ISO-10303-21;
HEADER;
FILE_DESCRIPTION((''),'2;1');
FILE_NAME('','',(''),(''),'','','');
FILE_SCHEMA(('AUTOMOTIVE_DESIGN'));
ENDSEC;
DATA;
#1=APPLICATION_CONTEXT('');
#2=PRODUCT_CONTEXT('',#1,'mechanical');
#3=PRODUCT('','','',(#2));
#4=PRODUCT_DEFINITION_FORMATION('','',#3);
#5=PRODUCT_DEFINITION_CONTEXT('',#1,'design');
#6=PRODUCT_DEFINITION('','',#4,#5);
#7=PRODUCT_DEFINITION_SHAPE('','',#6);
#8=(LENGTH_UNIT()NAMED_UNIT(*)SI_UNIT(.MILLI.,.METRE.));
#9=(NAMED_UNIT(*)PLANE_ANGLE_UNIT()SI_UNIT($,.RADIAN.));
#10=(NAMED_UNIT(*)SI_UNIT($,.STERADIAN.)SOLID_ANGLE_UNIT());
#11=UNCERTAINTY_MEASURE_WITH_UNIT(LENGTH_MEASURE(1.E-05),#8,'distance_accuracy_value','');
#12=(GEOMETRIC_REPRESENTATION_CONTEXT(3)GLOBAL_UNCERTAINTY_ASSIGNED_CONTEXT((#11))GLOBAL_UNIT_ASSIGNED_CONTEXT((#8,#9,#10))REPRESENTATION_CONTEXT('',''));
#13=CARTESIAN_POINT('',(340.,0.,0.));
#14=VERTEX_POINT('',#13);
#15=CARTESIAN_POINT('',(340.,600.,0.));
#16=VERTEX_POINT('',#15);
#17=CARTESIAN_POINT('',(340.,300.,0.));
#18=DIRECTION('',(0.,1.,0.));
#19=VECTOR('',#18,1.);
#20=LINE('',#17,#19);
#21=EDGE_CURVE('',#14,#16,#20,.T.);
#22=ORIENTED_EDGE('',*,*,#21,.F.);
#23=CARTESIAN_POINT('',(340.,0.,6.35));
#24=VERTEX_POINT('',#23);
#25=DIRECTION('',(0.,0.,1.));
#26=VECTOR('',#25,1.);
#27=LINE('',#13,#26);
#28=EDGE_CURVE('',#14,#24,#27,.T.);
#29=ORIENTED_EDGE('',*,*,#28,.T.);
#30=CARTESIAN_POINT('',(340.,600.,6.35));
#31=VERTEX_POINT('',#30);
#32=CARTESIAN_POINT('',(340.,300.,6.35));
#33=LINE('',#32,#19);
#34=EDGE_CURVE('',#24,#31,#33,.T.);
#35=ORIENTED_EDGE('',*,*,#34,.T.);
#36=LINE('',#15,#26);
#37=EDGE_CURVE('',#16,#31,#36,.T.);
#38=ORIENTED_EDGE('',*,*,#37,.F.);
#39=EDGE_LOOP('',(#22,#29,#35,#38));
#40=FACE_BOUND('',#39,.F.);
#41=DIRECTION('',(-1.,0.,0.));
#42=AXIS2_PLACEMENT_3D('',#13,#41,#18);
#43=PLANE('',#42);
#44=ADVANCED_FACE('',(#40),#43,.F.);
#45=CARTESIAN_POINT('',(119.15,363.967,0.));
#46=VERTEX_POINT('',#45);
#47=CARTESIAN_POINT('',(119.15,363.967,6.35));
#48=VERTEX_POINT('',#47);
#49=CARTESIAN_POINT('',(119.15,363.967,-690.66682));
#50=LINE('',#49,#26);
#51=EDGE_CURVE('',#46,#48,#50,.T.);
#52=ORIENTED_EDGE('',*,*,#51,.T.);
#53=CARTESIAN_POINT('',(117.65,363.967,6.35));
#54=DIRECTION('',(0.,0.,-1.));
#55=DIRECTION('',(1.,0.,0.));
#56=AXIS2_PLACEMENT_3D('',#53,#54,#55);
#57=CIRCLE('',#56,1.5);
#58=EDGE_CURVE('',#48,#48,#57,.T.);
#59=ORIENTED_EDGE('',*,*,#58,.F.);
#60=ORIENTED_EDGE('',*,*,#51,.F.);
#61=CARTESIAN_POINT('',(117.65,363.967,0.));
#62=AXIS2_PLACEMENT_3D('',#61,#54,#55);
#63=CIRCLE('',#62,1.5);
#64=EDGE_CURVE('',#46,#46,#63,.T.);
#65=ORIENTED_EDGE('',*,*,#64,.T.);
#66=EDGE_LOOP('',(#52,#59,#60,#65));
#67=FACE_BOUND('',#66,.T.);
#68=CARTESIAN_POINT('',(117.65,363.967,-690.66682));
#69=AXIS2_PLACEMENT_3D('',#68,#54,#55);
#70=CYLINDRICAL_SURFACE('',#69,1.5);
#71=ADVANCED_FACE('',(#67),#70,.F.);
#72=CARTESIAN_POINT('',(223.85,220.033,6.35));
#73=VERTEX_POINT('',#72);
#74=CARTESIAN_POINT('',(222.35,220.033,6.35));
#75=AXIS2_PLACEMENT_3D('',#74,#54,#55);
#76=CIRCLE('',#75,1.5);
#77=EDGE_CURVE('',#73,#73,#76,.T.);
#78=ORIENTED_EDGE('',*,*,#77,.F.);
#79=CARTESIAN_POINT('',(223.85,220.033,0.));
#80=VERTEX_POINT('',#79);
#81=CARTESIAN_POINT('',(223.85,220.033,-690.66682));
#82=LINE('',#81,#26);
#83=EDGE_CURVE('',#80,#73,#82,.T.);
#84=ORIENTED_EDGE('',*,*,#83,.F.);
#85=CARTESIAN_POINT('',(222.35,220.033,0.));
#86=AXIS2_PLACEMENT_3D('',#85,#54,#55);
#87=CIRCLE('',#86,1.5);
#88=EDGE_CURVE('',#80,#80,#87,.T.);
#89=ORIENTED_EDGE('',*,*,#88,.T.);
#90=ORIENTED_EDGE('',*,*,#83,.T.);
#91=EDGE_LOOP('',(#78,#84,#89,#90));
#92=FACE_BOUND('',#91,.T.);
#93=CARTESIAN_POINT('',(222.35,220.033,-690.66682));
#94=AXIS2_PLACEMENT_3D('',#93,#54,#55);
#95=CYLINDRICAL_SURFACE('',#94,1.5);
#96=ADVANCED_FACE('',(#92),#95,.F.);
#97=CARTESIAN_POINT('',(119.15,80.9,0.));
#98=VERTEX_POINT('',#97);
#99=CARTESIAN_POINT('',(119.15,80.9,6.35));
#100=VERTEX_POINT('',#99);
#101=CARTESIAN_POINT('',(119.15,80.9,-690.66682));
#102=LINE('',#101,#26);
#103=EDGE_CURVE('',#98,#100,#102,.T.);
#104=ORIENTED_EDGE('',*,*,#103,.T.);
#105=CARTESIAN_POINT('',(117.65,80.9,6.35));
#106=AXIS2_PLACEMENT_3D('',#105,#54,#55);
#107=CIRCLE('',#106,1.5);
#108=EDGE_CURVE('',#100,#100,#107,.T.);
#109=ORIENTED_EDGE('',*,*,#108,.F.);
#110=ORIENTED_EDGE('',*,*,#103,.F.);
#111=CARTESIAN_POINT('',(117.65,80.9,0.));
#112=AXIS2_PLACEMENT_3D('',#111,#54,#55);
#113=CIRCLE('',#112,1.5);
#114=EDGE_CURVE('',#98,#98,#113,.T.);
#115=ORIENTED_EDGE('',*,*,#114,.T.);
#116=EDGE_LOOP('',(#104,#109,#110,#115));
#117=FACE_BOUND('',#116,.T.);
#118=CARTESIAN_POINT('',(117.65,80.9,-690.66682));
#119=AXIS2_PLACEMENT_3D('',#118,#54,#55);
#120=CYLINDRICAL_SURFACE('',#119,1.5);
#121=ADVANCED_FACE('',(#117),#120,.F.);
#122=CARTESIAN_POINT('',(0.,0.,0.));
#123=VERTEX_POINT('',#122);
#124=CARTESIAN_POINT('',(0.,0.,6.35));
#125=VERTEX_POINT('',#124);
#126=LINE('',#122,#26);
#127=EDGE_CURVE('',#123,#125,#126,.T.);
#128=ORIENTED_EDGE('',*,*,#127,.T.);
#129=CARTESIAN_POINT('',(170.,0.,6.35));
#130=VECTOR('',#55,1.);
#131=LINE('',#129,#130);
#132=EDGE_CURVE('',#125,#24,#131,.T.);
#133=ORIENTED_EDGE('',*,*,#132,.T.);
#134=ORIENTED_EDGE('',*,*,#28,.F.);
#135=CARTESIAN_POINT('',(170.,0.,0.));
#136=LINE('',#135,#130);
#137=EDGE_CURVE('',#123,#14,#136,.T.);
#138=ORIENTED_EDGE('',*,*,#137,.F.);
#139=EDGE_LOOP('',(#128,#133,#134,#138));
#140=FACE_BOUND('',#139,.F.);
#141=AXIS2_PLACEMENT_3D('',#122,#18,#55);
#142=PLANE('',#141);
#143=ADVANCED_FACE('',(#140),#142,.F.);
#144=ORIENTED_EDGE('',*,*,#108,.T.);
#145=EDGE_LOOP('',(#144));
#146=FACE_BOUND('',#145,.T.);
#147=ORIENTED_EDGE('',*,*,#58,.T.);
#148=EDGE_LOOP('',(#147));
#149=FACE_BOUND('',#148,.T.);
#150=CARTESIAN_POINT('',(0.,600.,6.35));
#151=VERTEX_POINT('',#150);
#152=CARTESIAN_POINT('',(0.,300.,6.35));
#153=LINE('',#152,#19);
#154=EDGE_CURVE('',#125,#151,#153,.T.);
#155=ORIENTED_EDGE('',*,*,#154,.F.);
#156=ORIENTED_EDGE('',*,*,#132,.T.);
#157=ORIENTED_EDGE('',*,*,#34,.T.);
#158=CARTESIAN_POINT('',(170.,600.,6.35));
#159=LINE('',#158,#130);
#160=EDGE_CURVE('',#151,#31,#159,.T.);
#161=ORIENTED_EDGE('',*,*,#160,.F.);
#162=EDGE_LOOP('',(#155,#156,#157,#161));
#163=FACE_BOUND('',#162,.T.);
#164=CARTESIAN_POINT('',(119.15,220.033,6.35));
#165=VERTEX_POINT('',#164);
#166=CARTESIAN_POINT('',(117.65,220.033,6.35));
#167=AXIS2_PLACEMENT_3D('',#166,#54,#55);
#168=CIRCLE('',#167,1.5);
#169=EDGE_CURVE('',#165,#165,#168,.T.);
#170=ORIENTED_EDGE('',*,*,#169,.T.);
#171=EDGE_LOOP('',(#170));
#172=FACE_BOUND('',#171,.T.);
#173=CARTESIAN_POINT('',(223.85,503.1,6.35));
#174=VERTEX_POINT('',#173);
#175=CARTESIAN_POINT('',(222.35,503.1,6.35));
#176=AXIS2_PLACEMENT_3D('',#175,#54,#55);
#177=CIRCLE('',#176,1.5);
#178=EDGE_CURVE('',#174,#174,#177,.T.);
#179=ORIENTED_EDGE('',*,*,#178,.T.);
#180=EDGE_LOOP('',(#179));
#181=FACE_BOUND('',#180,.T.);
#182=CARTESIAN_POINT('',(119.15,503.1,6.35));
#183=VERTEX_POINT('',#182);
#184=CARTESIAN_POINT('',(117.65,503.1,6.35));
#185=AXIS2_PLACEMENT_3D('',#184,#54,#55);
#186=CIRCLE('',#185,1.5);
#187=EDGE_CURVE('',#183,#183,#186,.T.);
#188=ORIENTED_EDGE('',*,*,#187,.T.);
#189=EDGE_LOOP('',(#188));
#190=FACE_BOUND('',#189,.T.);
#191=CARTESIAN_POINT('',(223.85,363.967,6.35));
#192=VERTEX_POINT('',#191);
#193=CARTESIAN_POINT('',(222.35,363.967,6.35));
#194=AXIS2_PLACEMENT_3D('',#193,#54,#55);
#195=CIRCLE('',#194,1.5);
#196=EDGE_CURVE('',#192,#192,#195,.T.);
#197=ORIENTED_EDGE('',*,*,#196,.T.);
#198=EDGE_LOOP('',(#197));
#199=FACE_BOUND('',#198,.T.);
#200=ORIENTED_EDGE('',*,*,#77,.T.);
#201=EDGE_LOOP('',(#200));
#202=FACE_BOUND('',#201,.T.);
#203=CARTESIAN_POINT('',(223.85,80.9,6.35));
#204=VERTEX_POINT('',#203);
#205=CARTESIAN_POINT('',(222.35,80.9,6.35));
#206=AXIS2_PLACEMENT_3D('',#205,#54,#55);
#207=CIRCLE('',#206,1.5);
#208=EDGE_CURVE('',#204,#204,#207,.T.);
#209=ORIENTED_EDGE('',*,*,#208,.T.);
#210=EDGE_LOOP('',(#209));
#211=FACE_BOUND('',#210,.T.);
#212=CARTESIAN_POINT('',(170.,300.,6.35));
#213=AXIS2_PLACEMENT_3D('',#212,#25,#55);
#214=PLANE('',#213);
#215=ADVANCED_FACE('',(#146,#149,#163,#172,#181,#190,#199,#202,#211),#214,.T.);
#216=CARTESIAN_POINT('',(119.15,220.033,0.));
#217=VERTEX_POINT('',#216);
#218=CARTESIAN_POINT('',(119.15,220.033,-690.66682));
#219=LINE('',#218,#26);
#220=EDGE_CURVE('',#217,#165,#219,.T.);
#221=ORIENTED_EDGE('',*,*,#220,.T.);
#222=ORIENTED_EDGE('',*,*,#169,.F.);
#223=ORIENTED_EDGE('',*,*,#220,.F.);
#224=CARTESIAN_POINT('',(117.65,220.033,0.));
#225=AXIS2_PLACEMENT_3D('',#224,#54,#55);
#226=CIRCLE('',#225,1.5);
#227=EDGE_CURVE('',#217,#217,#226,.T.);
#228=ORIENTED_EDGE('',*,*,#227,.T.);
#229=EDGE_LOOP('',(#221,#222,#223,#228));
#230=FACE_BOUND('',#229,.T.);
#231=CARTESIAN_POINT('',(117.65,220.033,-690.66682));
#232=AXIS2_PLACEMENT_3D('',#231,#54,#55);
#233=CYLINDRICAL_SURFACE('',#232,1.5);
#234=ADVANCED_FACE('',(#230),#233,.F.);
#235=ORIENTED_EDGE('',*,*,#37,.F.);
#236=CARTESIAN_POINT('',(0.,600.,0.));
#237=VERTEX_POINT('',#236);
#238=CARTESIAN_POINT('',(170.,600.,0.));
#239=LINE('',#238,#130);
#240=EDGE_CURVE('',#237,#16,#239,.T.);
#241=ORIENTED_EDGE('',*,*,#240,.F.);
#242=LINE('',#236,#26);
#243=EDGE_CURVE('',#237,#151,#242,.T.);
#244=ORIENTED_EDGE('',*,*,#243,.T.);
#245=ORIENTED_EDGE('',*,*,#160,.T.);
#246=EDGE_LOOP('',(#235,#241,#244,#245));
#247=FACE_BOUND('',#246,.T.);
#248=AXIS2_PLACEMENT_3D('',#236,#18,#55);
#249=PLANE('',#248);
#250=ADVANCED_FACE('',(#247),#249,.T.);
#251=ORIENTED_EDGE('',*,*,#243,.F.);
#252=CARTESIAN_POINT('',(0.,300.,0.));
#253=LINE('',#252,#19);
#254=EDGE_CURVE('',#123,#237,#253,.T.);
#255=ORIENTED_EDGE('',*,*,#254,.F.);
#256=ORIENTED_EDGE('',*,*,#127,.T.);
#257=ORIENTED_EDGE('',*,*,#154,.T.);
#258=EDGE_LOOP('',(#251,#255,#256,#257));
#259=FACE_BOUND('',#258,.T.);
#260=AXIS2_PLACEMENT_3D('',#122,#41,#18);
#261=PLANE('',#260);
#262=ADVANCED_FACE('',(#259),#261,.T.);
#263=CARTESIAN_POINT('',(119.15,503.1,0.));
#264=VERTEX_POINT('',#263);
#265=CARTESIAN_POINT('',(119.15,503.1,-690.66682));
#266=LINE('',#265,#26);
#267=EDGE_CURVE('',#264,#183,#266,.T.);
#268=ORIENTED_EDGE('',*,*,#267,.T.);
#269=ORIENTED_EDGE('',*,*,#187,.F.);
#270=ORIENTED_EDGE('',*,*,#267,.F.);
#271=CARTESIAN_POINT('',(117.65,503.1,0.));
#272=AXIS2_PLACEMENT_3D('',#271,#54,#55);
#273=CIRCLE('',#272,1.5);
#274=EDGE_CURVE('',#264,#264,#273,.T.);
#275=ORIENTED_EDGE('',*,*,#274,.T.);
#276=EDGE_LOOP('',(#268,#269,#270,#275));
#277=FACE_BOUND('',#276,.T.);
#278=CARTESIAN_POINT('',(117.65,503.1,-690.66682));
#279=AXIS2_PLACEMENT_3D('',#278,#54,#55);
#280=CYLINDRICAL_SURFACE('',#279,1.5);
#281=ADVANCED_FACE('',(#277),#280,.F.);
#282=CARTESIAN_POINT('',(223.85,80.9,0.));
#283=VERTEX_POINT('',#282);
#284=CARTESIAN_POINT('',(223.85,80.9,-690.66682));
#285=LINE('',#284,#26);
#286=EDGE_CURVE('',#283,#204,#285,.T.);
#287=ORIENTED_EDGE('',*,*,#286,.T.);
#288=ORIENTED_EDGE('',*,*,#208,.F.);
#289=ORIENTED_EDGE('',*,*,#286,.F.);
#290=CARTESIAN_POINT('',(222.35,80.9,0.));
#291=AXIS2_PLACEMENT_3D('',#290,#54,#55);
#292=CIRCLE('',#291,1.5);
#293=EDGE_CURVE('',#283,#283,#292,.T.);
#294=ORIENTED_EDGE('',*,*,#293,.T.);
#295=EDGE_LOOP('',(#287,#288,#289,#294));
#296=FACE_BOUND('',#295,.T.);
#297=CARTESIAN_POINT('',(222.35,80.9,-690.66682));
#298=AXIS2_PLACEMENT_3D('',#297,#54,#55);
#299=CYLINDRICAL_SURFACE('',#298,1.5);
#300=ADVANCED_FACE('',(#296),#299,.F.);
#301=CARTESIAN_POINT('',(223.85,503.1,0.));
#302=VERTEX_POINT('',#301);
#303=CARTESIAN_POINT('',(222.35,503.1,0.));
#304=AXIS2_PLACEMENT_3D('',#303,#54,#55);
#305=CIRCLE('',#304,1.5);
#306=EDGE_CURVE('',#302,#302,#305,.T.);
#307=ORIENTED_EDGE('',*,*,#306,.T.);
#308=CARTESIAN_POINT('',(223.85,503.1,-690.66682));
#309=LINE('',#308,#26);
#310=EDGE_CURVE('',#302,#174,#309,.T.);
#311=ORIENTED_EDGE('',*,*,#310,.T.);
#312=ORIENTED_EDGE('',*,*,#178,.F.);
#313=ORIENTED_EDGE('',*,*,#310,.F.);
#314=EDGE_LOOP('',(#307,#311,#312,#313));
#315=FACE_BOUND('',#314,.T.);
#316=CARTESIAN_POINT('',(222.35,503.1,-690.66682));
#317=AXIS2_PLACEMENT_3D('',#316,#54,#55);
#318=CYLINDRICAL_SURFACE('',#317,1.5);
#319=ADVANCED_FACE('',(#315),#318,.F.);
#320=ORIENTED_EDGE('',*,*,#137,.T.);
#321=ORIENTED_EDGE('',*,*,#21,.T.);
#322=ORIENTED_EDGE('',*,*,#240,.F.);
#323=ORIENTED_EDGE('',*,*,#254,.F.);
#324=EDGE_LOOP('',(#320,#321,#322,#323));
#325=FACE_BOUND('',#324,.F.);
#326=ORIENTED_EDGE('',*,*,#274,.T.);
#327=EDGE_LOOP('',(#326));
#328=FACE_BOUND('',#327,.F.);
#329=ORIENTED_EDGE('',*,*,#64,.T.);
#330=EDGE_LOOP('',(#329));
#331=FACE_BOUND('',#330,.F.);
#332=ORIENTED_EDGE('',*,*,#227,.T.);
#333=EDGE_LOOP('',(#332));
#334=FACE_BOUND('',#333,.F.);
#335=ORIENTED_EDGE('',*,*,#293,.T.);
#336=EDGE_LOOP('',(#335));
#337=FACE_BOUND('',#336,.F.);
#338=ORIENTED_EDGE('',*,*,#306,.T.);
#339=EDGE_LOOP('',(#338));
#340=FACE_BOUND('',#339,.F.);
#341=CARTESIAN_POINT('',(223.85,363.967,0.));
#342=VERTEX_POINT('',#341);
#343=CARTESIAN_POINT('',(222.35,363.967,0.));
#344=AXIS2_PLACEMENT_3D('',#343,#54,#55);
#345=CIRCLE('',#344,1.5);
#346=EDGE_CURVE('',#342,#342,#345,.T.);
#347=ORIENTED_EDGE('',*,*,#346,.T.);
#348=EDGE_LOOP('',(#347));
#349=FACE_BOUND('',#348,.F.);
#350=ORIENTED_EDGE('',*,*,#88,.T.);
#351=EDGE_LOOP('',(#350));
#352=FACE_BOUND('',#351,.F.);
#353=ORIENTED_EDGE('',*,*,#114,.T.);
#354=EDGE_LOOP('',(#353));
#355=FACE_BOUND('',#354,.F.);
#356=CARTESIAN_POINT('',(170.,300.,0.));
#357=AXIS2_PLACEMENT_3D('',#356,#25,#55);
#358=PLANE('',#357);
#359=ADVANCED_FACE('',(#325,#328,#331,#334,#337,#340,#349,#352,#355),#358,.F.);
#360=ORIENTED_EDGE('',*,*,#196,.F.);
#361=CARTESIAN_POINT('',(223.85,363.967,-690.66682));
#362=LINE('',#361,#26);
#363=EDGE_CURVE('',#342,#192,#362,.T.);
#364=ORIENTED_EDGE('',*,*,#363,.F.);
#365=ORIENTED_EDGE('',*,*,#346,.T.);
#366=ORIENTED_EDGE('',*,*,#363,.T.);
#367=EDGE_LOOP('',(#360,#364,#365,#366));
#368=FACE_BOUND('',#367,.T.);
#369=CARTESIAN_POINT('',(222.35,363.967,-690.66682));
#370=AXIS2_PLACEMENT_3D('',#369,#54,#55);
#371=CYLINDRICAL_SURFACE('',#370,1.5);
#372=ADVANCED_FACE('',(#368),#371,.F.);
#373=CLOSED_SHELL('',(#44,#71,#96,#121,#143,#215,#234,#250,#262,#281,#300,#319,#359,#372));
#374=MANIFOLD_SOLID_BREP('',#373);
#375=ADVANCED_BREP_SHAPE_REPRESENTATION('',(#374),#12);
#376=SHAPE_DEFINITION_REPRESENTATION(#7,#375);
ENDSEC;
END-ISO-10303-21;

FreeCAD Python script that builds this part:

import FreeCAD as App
import Part
import Sketcher


def add_polygon(sketch, points):
    """Adds a closed chain of lines whose ends are joined by coincident constraints."""
    first, n = sketch.GeometryCount, len(points)
    for a, b in zip(points, points[1:] + points[:1]):
        sketch.addGeometry(Part.LineSegment(App.Vector(*a, 0), App.Vector(*b, 0)), False)
    for i in range(n):
        sketch.addConstraint(Sketcher.Constraint("Coincident", first + i, 2, first + (i + 1) % n, 1))

doc = App.newDocument("Part")
body = doc.addObject("PartDesign::Body", "Body")

# Sketch on XY plane
sketch1 = doc.addObject("Sketcher::SketchObject", "Sketch")
body.addObject(sketch1)
sketch1.AttachmentSupport = (doc.XY_Plane, [""])
sketch1.MapMode = "FlatFace"
add_polygon(sketch1, [(0, 600), (0, 0), (340, 0), (340, 600)])  # lines 0-3
sketch1.addConstraint(Sketcher.Constraint("Vertical", 0))
sketch1.addConstraint(Sketcher.Constraint("Horizontal", 1))
sketch1.addConstraint(Sketcher.Constraint("Vertical", 2))
sketch1.addConstraint(Sketcher.Constraint("Horizontal", 3))
sketch1.addConstraint(Sketcher.Constraint("Coincident", 0, 2, -1, 1))
sketch1.addConstraint(Sketcher.Constraint("DistanceX", 1, 1, 1, 2, 340.0))
sketch1.addConstraint(Sketcher.Constraint("DistanceY", 0, 2, 0, 1, 600.0))
pad1 = doc.addObject("PartDesign::Pad", "Pad")
body.addObject(pad1)
pad1.Profile = sketch1
pad1.Length = 6.35

# Sketch on XY plane
sketch2 = doc.addObject("Sketcher::SketchObject", "Sketch001")
body.addObject(sketch2)
sketch2.AttachmentSupport = (doc.XY_Plane, [""])
sketch2.MapMode = "FlatFace"
sketch2.addGeometry(Part.Circle(App.Vector(222.35, 80.9, 0), App.Vector(0, 0, 1), 1.5), False)
sketch2.addGeometry(Part.Circle(App.Vector(117.65, 80.9, 0), App.Vector(0, 0, 1), 1.5), False)
sketch2.addGeometry(Part.Circle(App.Vector(222.35, 220.033, 0), App.Vector(0, 0, 1), 1.5), False)
sketch2.addGeometry(Part.Circle(App.Vector(117.65, 220.033, 0), App.Vector(0, 0, 1), 1.5), False)
sketch2.addGeometry(Part.Circle(App.Vector(222.35, 363.967, 0), App.Vector(0, 0, 1), 1.5), False)
sketch2.addGeometry(Part.Circle(App.Vector(117.65, 363.967, 0), App.Vector(0, 0, 1), 1.5), False)
sketch2.addGeometry(Part.Circle(App.Vector(222.35, 503.1, 0), App.Vector(0, 0, 1), 1.5), False)
sketch2.addGeometry(Part.Circle(App.Vector(117.65, 503.1, 0), App.Vector(0, 0, 1), 1.5), False)
sketch2.addConstraint(Sketcher.Constraint("Equal", 0, 1))
sketch2.addConstraint(Sketcher.Constraint("Equal", 1, 2))
sketch2.addConstraint(Sketcher.Constraint("Equal", 2, 3))
sketch2.addConstraint(Sketcher.Constraint("Equal", 3, 4))
sketch2.addConstraint(Sketcher.Constraint("Equal", 4, 5))
sketch2.addConstraint(Sketcher.Constraint("Equal", 5, 6))
sketch2.addConstraint(Sketcher.Constraint("Equal", 6, 7))
sketch2.addConstraint(Sketcher.Constraint("Horizontal", 0, 3, 1, 3))
sketch2.addConstraint(Sketcher.Constraint("Horizontal", 2, 3, 3, 3))
sketch2.addConstraint(Sketcher.Constraint("Horizontal", 4, 3, 5, 3))
sketch2.addConstraint(Sketcher.Constraint("Horizontal", 6, 3, 7, 3))
sketch2.addConstraint(Sketcher.Constraint("Vertical", 0, 3, 2, 3))
sketch2.addConstraint(Sketcher.Constraint("Vertical", 1, 3, 3, 3))
sketch2.addConstraint(Sketcher.Constraint("Vertical", 2, 3, 4, 3))
sketch2.addConstraint(Sketcher.Constraint("Vertical", 3, 3, 5, 3))
sketch2.addConstraint(Sketcher.Constraint("Vertical", 4, 3, 6, 3))
sketch2.addConstraint(Sketcher.Constraint("Vertical", 5, 3, 7, 3))
sketch2.addConstraint(Sketcher.Constraint("Diameter", 0, 3.0))
sketch2.addConstraint(Sketcher.Constraint("DistanceY", -1, 1, 0, 3, 80.9))
sketch2.addConstraint(Sketcher.Constraint("DistanceY", -1, 1, 6, 3, 503.1))
sketch2.addConstraint(Sketcher.Constraint("DistanceX", 1, 3, 0, 3, 104.7))
sketch2.addConstraint(Sketcher.Constraint("DistanceX", -1, 1, 0, 3, 222.35))
sketch2.addConstraint(Sketcher.Constraint("DistanceY", -1, 1, 2, 3, 220.033))
sketch2.addConstraint(Sketcher.Constraint("DistanceY", -1, 1, 4, 3, 363.967))
pocket1 = doc.addObject("PartDesign::Pocket", "Pocket")
body.addObject(pocket1)
pocket1.Profile = sketch2
pocket1.Type = "ThroughAll"
pocket1.Midplane = True

doc.recompute()
